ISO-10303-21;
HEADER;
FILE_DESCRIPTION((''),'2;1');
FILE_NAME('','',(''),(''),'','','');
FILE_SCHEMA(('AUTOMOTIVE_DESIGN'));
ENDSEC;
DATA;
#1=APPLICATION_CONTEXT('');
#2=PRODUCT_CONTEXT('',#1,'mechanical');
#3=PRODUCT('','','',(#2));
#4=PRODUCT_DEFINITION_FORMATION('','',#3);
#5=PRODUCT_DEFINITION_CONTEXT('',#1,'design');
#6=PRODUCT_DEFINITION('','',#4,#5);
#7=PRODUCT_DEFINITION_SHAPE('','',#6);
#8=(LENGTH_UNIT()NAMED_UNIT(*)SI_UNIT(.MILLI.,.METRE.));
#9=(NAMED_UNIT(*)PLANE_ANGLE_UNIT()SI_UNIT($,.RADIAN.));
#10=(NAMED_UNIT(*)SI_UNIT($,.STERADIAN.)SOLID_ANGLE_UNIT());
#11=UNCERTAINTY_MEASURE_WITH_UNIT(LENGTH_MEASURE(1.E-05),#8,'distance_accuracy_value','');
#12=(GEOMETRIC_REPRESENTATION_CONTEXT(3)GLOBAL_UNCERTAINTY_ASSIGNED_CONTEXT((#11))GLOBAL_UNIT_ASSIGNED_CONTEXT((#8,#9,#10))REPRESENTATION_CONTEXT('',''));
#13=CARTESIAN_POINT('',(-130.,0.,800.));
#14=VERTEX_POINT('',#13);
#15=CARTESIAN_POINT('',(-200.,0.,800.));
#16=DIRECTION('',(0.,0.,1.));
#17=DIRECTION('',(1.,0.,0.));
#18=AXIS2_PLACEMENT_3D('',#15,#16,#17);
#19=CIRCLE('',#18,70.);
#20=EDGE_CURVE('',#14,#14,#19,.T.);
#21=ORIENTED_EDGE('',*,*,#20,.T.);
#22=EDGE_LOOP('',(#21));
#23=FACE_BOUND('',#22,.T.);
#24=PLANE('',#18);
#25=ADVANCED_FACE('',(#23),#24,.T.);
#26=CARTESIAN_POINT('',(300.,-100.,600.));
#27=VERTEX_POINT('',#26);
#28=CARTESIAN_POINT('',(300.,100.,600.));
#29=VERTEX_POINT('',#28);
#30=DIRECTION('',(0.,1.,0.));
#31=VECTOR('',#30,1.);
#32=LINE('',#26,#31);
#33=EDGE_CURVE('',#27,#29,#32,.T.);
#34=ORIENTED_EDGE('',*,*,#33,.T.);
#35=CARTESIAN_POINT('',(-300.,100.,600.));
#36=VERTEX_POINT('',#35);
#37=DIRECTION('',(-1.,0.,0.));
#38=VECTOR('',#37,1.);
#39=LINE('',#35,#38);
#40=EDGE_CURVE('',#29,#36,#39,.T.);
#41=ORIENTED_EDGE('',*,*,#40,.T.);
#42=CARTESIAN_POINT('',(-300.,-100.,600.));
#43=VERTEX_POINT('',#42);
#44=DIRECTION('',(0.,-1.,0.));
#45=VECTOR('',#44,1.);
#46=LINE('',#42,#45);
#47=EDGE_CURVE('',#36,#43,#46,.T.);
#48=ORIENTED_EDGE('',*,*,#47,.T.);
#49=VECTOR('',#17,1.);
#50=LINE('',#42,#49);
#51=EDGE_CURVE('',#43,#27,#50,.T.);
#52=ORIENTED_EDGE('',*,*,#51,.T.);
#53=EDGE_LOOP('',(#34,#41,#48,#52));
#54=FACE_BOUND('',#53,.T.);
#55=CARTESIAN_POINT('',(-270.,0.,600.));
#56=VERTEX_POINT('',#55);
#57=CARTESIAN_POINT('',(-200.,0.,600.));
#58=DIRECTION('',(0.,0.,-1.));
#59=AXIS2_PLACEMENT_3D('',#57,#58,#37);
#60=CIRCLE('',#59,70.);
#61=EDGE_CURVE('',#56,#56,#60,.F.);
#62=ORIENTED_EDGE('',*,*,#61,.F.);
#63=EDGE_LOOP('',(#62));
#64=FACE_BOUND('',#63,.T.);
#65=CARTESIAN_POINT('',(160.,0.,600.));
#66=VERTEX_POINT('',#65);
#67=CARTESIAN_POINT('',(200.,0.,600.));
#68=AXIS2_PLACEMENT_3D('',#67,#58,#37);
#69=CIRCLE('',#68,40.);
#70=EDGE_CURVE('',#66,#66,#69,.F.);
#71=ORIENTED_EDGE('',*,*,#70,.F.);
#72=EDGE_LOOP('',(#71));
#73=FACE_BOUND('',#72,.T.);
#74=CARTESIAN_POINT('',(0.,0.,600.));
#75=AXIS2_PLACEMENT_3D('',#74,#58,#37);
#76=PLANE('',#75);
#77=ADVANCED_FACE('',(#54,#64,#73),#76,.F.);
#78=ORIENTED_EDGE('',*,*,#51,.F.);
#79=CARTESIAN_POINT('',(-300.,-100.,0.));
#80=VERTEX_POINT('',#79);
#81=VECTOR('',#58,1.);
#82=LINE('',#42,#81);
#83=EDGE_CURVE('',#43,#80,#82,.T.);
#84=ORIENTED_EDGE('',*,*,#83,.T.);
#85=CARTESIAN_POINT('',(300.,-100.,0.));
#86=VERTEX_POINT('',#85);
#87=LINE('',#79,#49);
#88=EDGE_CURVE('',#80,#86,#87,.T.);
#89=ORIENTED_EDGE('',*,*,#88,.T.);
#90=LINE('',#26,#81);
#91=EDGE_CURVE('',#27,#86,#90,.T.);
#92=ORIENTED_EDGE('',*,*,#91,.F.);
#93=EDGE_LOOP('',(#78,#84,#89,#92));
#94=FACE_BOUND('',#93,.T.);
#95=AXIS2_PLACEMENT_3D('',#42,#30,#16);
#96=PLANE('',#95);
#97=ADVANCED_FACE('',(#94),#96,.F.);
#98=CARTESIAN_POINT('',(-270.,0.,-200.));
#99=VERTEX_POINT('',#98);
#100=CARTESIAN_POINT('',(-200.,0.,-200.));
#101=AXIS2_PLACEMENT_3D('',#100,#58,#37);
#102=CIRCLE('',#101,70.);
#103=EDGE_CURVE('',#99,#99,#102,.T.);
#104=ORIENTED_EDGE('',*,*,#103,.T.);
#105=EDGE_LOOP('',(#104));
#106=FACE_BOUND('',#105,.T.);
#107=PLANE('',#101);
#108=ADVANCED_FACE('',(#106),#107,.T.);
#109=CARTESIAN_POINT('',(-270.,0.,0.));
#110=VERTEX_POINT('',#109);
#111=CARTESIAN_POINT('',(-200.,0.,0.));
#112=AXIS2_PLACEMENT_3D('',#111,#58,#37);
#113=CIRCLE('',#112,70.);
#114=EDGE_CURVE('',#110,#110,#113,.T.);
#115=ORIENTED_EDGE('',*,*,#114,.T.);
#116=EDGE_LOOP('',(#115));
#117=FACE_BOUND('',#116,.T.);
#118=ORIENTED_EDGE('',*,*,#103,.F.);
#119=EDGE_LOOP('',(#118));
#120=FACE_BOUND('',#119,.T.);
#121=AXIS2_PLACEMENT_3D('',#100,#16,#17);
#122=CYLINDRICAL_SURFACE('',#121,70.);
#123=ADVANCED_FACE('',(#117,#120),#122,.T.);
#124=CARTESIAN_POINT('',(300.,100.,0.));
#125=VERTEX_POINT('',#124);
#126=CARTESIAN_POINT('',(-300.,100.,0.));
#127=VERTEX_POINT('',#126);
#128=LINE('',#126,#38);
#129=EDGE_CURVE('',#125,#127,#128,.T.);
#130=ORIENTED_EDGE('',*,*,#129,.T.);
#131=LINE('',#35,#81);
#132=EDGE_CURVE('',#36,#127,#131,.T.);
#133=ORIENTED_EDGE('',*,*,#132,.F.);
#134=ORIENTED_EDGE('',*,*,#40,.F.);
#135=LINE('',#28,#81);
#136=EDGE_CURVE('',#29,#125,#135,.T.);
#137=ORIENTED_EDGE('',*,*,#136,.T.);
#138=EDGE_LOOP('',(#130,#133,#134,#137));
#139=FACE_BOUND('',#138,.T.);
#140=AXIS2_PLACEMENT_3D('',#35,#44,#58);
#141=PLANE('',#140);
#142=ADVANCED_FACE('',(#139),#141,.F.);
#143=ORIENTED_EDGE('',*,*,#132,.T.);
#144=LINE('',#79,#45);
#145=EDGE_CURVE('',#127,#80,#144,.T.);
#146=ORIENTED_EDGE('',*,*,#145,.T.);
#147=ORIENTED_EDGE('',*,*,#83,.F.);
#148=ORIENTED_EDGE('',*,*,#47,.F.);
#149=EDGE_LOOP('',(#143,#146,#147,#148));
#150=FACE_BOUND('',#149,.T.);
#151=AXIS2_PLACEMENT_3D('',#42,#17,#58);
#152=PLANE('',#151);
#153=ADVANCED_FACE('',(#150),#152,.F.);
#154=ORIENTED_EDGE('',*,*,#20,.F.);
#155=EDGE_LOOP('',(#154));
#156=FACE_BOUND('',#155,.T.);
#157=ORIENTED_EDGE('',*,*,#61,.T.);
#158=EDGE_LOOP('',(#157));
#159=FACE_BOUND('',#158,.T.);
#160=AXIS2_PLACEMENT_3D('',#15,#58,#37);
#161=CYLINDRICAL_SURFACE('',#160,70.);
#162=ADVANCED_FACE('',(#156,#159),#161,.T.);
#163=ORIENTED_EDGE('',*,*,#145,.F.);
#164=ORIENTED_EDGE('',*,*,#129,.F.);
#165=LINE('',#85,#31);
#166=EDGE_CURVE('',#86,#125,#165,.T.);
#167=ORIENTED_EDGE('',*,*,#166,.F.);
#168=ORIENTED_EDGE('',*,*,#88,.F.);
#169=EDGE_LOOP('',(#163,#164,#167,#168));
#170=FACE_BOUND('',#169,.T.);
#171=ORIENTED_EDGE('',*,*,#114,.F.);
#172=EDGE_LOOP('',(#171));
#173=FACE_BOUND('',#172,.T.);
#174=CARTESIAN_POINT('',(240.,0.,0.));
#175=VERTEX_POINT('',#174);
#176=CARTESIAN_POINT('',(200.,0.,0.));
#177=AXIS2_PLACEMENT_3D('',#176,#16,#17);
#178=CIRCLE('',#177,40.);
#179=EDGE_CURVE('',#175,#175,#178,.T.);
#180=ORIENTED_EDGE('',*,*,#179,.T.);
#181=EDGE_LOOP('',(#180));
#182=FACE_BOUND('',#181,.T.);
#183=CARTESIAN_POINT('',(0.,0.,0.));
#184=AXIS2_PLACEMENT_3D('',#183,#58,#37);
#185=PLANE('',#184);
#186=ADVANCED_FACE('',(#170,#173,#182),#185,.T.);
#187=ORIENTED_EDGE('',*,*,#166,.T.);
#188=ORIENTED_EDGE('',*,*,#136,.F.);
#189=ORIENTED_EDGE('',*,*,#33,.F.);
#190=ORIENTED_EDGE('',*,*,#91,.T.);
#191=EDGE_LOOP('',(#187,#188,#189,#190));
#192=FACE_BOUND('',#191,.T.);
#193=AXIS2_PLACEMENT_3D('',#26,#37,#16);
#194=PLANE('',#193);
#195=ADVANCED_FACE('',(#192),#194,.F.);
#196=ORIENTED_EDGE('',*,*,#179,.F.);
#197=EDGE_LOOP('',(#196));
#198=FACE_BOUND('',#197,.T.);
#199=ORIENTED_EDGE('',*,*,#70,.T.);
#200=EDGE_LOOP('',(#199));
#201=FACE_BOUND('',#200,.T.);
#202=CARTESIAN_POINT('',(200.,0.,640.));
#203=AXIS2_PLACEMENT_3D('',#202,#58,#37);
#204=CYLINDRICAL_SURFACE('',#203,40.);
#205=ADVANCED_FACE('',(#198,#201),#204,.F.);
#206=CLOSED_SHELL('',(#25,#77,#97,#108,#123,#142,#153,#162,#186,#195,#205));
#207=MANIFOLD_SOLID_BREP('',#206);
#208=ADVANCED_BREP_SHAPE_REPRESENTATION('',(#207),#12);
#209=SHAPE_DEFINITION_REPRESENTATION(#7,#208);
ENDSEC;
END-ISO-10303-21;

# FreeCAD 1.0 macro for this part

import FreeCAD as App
import Part
import Sketcher
Q = App.Units.Quantity


def add_polygon(sketch, points):
    """Adds a closed chain of lines whose ends are joined by coincident constraints."""
    first, n = sketch.GeometryCount, len(points)
    for a, b in zip(points, points[1:] + points[:1]):
        sketch.addGeometry(Part.LineSegment(App.Vector(*a, 0), App.Vector(*b, 0)), False)
    for i in range(n):
        sketch.addConstraint(Sketcher.Constraint("Coincident", first + i, 2, first + (i + 1) % n, 1))

doc = App.newDocument("Part")
body = doc.addObject("PartDesign::Body", "Body")

# Sketch on XY plane
sketch1 = body.newObject("Sketcher::SketchObject", "Sketch")
sketch1.AttachmentSupport = (doc.getObject("XY_Plane"), [""])
sketch1.MapMode = "FlatFace"
add_polygon(sketch1, [(-300, 100), (-300, -100), (300, -100), (300, 100)])  # lines 0-3
sketch1.addConstraint([
    Sketcher.Constraint("Vertical", 0),
    Sketcher.Constraint("Horizontal", 1),
    Sketcher.Constraint("Vertical", 2),
    Sketcher.Constraint("Horizontal", 3),
    Sketcher.Constraint("Symmetric", 0, 2, 2, 2, -1, 1),
    Sketcher.Constraint("DistanceX", 1, 1, 1, 2, Q("600 mm")),
    Sketcher.Constraint("DistanceY", 0, 2, 0, 1, Q("200 mm")),
])
pad1 = body.newObject("PartDesign::Pad", "Pad")
pad1.Profile = sketch1
pad1.Length = 600

# Sketch on XY plane
sketch2 = body.newObject("Sketcher::SketchObject", "Sketch001")
sketch2.AttachmentSupport = (doc.getObject("XY_Plane"), [""])
sketch2.MapMode = "FlatFace"
sketch2.AttachmentOffset = App.Placement(App.Vector(0, 0, 600), App.Rotation())
sketch2.addGeometry(Part.Circle(App.Vector(200, 0, 0), App.Vector(0, 0, 1), 40), False)
sketch2.addConstraint([
    Sketcher.Constraint("PointOnObject", 0, 3, -1),
    Sketcher.Constraint("Diameter", 0, Q("80 mm")),
    Sketcher.Constraint("DistanceX", -1, 1, 0, 3, Q("200 mm")),
])
pocket1 = body.newObject("PartDesign::Pocket", "Pocket")
pocket1.Profile = sketch2
pocket1.Type = "ThroughAll"
pocket1.Midplane = True

# Sketch on XY plane
sketch3 = body.newObject("Sketcher::SketchObject", "Sketch002")
sketch3.AttachmentSupport = (doc.getObject("XY_Plane"), [""])
sketch3.MapMode = "FlatFace"
sketch3.AttachmentOffset = App.Placement(App.Vector(0, 0, 600), App.Rotation())
sketch3.addGeometry(Part.Circle(App.Vector(-200, 0, 0), App.Vector(0, 0, 1), 70), False)
sketch3.addConstraint([
    Sketcher.Constraint("PointOnObject", 0, 3, -1),
    Sketcher.Constraint("Diameter", 0, Q("140 mm")),
    Sketcher.Constraint("DistanceX", 0, 3, -1, 1, Q("200 mm")),
])
pad2 = body.newObject("PartDesign::Pad", "Pad001")
pad2.Profile = sketch3
pad2.Length = 200

# Sketch on XY plane
sketch4 = body.newObject("Sketcher::SketchObject", "Sketch003")
sketch4.AttachmentSupport = (doc.getObject("XY_Plane"), [""])
sketch4.MapMode = "FlatFace"
sketch4.AttachmentOffset = App.Placement(App.Vector(0, 0, -200), App.Rotation())
sketch4.addGeometry(Part.Circle(App.Vector(-200, 0, 0), App.Vector(0, 0, 1), 70), False)
sketch4.addConstraint([
    Sketcher.Constraint("PointOnObject", 0, 3, -1),
    Sketcher.Constraint("Diameter", 0, Q("140 mm")),
    Sketcher.Constraint("DistanceX", 0, 3, -1, 1, Q("200 mm")),
])
pad3 = body.newObject("PartDesign::Pad", "Pad002")
pad3.Profile = sketch4
pad3.Length = 200

doc.recompute()
